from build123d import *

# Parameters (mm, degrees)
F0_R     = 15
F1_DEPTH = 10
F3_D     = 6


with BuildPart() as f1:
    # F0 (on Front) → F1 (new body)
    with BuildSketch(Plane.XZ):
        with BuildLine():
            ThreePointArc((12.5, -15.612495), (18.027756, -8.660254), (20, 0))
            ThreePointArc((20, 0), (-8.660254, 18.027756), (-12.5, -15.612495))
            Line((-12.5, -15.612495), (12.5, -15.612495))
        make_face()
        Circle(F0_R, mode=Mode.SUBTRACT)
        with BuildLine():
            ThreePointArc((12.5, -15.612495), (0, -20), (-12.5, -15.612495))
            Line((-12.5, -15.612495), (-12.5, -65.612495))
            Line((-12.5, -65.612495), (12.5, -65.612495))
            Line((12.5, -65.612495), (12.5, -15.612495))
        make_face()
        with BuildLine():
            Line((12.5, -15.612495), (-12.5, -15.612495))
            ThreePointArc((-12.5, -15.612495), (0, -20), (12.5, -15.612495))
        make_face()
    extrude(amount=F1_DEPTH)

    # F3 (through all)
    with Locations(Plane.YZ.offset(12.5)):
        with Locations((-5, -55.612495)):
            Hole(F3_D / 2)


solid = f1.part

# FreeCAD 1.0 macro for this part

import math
import FreeCAD as App
import Part
import Sketcher
from FreeCAD import Vector

doc = App.newDocument("Part")
body = doc.addObject("PartDesign::Body", "Body")

sketch1 = body.newObject("Sketcher::SketchObject", "Sketch")
sketch1.AttachmentSupport = (doc.getObject("XZ_Plane"), [""])
sketch1.MapMode = "FlatFace"
sketch1.addGeometry([
    Part.ArcOfCircle(Part.Circle(Vector(0, 0, 0), Vector(0, 0, 1), 20), math.radians(-51), math.radians(0)),
    Part.ArcOfCircle(Part.Circle(Vector(0, 0, 0), Vector(0, 0, 1), 20), math.radians(0), math.radians(231)),
    Part.LineSegment(Vector(-12, -16, 0), Vector(-12, -66, 0)),
    Part.LineSegment(Vector(-12, -66, 0), Vector(12, -66, 0)),
    Part.LineSegment(Vector(12, -66, 0), Vector(12, -16, 0)),
    Part.Circle(Vector(0, 0, 0), Vector(0, 0, 1), 15),
], False)
sketch1.addConstraint([
    Sketcher.Constraint("Tangent", 0, 2, 1, 1),
    Sketcher.Constraint("Coincident", 1, 2, 2, 1),
    Sketcher.Constraint("Coincident", 2, 2, 3, 1),
    Sketcher.Constraint("Coincident", 3, 2, 4, 1),
    Sketcher.Constraint("Coincident", 4, 2, 0, 1),
    Sketcher.Constraint("Vertical", 2),
    Sketcher.Constraint("Horizontal", 3),
    Sketcher.Constraint("Vertical", 4),
    Sketcher.Constraint("Coincident", 0, 3, -1, 1),
    Sketcher.Constraint("Coincident", 5, 3, -1, 1),
    Sketcher.Constraint("Symmetric", 1, 2, 4, 2, -2),
    Sketcher.Constraint("PointOnObject", 0, 2, -1),
    Sketcher.Constraint("Diameter", 5, 30.0),
    Sketcher.Constraint("Radius", 1, 20.0),
    Sketcher.Constraint("DistanceX", 3, 1, 3, 2, 25.0),
    Sketcher.Constraint("DistanceY", 2, 2, 2, 1, 50.0),
])
pad1 = body.newObject("PartDesign::Pad", "Pad")
pad1.Profile = sketch1
pad1.Length = 10

sketch2 = body.newObject("Sketcher::SketchObject", "Sketch001")
sketch2.AttachmentSupport = (doc.getObject("YZ_Plane"), [""])
sketch2.MapMode = "FlatFace"
sketch2.AttachmentOffset = App.Placement(Vector(0, 0, 12.5), App.Rotation())
sketch2.addGeometry(Part.Circle(Vector(-5, -55.6, 0), Vector(0, 0, 1), 3), False)
sketch2.addConstraint([
    Sketcher.Constraint("Diameter", 0, 6.0),
    Sketcher.Constraint("DistanceX", 0, 3, -1, 1, 5.0),
    Sketcher.Constraint("DistanceY", 0, 3, -1, 1, 55.612495),
])
doc.recompute()
hole = body.newObject("PartDesign::Hole", "Hole")
hole.Profile = sketch2
hole.ThreadType = "None"
hole.Diameter = 6
hole.DepthType = "ThroughAll"

doc.recompute()
